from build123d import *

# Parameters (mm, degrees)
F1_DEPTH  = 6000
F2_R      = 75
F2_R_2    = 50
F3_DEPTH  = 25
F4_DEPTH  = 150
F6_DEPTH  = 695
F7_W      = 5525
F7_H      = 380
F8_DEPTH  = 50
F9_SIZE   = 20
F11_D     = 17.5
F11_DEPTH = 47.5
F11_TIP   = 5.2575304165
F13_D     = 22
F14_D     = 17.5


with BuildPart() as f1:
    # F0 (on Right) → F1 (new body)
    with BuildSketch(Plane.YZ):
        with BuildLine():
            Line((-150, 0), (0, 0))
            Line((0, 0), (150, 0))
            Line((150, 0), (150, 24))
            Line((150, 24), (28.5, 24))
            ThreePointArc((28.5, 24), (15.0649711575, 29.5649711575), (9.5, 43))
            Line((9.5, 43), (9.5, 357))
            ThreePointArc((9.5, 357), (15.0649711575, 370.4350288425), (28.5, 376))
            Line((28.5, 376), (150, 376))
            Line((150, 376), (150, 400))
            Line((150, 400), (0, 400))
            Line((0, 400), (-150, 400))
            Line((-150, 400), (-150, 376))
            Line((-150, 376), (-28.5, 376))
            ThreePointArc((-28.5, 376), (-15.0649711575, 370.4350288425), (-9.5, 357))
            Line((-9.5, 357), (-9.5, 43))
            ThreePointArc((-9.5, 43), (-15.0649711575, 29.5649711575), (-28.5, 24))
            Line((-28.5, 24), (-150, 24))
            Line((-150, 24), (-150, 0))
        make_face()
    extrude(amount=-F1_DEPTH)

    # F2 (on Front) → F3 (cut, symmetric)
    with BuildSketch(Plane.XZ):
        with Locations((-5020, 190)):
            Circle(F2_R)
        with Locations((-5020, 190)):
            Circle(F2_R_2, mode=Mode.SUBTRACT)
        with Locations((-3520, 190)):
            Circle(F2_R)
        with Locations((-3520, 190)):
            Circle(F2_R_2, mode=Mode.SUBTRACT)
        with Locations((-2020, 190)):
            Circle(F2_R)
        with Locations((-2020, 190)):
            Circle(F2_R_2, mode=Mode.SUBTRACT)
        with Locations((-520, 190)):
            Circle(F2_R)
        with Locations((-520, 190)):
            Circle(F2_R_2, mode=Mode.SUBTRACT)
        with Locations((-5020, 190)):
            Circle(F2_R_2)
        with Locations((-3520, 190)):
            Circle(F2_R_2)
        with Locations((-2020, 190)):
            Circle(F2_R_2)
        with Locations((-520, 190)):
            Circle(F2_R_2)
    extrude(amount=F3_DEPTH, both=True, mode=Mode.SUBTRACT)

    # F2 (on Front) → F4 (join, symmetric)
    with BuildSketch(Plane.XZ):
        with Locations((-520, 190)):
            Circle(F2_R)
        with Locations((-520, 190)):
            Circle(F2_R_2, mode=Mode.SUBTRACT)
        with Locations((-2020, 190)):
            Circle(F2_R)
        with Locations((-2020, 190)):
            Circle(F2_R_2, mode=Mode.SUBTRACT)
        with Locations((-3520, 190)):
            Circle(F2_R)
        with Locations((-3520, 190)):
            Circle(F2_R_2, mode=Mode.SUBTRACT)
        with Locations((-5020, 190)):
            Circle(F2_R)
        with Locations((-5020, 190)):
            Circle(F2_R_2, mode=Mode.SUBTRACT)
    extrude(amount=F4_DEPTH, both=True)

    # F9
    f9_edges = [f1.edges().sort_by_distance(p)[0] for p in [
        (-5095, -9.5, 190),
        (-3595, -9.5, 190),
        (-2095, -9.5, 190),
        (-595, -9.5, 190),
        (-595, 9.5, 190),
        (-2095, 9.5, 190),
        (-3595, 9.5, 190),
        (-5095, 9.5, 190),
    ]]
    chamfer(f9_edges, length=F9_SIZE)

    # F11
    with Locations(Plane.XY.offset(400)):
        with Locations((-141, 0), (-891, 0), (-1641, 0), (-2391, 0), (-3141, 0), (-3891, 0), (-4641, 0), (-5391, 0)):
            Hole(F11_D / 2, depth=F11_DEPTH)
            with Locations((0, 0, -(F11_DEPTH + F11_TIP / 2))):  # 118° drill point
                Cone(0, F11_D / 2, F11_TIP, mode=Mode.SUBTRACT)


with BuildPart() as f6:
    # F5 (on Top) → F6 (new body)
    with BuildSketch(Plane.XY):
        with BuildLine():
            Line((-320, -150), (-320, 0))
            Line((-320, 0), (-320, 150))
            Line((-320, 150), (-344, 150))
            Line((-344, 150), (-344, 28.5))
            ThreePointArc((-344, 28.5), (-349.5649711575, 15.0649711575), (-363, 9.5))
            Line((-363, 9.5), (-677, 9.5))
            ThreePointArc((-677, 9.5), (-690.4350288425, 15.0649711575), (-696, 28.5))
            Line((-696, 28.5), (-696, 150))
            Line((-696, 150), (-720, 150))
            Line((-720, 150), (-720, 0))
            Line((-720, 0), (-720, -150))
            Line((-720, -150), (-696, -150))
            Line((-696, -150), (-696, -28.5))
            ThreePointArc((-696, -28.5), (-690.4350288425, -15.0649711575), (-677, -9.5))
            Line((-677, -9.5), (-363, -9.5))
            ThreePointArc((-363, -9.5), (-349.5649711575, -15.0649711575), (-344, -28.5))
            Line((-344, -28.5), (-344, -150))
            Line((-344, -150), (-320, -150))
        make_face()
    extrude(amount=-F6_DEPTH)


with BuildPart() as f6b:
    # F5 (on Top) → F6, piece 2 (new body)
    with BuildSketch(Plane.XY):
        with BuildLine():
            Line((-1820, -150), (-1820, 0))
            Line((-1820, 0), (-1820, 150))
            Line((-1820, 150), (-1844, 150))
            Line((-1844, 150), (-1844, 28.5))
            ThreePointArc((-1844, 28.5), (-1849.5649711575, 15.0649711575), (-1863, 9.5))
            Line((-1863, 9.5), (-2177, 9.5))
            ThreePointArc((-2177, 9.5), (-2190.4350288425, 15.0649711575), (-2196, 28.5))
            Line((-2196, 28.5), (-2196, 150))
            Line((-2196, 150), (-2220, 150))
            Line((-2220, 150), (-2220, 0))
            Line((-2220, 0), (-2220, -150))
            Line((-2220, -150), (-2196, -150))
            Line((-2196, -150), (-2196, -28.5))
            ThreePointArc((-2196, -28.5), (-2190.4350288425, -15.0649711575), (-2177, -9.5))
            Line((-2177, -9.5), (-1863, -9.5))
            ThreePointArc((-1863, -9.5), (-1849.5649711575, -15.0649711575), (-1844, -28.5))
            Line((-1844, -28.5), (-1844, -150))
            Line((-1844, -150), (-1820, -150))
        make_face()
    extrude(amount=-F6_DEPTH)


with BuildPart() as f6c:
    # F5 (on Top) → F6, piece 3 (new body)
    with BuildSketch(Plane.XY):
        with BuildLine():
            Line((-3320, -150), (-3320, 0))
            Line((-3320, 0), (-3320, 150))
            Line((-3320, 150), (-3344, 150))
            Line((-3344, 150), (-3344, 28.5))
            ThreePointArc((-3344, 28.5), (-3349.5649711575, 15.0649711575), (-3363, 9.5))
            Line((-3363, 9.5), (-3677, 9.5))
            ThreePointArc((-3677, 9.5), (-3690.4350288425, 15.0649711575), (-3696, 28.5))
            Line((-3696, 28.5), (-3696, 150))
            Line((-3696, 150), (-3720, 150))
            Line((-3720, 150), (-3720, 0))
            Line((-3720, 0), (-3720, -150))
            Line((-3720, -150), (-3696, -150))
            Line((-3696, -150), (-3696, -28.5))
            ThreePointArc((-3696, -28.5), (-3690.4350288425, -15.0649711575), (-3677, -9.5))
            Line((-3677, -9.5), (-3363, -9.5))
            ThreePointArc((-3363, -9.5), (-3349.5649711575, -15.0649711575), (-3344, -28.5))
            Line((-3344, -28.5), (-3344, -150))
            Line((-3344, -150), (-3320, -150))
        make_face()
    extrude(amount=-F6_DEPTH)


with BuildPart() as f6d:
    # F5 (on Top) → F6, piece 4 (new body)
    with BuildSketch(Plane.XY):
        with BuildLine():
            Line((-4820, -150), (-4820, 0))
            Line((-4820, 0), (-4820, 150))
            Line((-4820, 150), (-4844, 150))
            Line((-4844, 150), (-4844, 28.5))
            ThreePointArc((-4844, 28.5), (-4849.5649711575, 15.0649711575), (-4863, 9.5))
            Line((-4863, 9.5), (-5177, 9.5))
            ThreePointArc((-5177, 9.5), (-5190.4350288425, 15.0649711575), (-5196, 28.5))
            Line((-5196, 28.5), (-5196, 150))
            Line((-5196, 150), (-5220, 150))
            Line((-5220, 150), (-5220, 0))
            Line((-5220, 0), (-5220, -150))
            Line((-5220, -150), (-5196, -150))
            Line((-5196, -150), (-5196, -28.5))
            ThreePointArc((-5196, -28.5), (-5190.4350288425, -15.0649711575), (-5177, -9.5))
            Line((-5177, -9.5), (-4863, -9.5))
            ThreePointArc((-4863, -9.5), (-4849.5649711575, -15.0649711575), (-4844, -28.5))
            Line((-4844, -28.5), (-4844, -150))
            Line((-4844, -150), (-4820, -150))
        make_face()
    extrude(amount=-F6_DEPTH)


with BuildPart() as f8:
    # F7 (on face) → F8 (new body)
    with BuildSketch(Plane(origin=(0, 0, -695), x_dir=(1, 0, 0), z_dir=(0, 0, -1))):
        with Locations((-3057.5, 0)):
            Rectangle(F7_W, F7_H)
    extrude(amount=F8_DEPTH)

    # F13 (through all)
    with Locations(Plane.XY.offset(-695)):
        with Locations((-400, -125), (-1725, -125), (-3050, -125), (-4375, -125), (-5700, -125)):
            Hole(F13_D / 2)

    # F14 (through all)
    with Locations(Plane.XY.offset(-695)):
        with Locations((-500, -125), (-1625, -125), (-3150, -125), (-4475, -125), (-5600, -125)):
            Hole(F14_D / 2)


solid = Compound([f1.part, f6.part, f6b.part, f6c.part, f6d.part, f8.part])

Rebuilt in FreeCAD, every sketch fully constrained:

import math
import FreeCAD as App
import Part
import Sketcher

V = App.Vector
Q = App.Units.Quantity


def edges_at(feature, points):
    """Names of the edges that pass closest to the given points."""
    edges = feature.Shape.Edges
    near = lambda p: min(range(len(edges)), key=lambda i: edges[i].distToShape(Part.Vertex(*p))[0])
    return sorted({f"Edge{near(p) + 1}" for p in points})

doc = App.newDocument("Part")
body = doc.addObject("PartDesign::Body", "Body")

# Sketch on YZ plane
sketch1 = doc.addObject("Sketcher::SketchObject", "Sketch")
body.addObject(sketch1)
sketch1.AttachmentSupport = (doc.YZ_Plane, [""])
sketch1.MapMode = "FlatFace"
sketch1.addGeometry([
    Part.LineSegment(V(-150, 0, 0), V(150, 0, 0)),  # 0
    Part.LineSegment(V(150, 0, 0), V(150, 24, 0)),  # 1
    Part.LineSegment(V(150, 24, 0), V(28.5, 24, 0)),  # 2
    Part.ArcOfCircle(Part.Circle(V(28.5, 43, 0), V(0, 0, 1), 19), math.radians(180), math.radians(270)),  # 3
    Part.LineSegment(V(9.5, 43, 0), V(9.5, 357, 0)),  # 4
    Part.ArcOfCircle(Part.Circle(V(28.5, 357, 0), V(0, 0, 1), 19), math.radians(90), math.radians(180)),  # 5
    Part.LineSegment(V(28.5, 376, 0), V(150, 376, 0)),  # 6
    Part.LineSegment(V(150, 376, 0), V(150, 400, 0)),  # 7
    Part.LineSegment(V(150, 400, 0), V(-150, 400, 0)),  # 8
    Part.LineSegment(V(-150, 400, 0), V(-150, 376, 0)),  # 9
    Part.LineSegment(V(-150, 376, 0), V(-28.5, 376, 0)),  # 10
    Part.ArcOfCircle(Part.Circle(V(-28.5, 357, 0), V(0, 0, 1), 19), math.radians(0), math.radians(90)),  # 11
    Part.LineSegment(V(-9.5, 357, 0), V(-9.5, 43, 0)),  # 12
    Part.ArcOfCircle(Part.Circle(V(-28.5, 43, 0), V(0, 0, 1), 19), math.radians(-90), math.radians(0)),  # 13
    Part.LineSegment(V(-28.5, 24, 0), V(-150, 24, 0)),  # 14
    Part.LineSegment(V(-150, 24, 0), V(-150, 0, 0)),  # 15
], False)
sketch1.addConstraint([
    Sketcher.Constraint("Coincident", 0, 2, 1, 1),
    Sketcher.Constraint("Coincident", 1, 2, 2, 1),
    Sketcher.Constraint("Tangent", 2, 2, 3, 2),
    Sketcher.Constraint("Tangent", 3, 1, 4, 1),
    Sketcher.Constraint("Tangent", 4, 2, 5, 2),
    Sketcher.Constraint("Tangent", 5, 1, 6, 1),
    Sketcher.Constraint("Coincident", 6, 2, 7, 1),
    Sketcher.Constraint("Coincident", 7, 2, 8, 1),
    Sketcher.Constraint("Coincident", 8, 2, 9, 1),
    Sketcher.Constraint("Coincident", 9, 2, 10, 1),
    Sketcher.Constraint("Tangent", 10, 2, 11, 2),
    Sketcher.Constraint("Tangent", 11, 1, 12, 1),
    Sketcher.Constraint("Tangent", 12, 2, 13, 2),
    Sketcher.Constraint("Tangent", 13, 1, 14, 1),
    Sketcher.Constraint("Coincident", 14, 2, 15, 1),
    Sketcher.Constraint("Coincident", 15, 2, 0, 1),
    Sketcher.Constraint("Horizontal", 0),
    Sketcher.Constraint("Vertical", 1),
    Sketcher.Constraint("Horizontal", 2),
    Sketcher.Constraint("Vertical", 4),
    Sketcher.Constraint("Horizontal", 6),
    Sketcher.Constraint("Vertical", 7),
    Sketcher.Constraint("Horizontal", 8),
    Sketcher.Constraint("Vertical", 9),
    Sketcher.Constraint("Horizontal", 10),
    Sketcher.Constraint("Vertical", 12),
    Sketcher.Constraint("Horizontal", 14),
    Sketcher.Constraint("Vertical", 15),
    Sketcher.Constraint("Equal", 3, 5),
    Sketcher.Constraint("Equal", 5, 11),
    Sketcher.Constraint("Equal", 11, 13),
    Sketcher.Constraint("Symmetric", 0, 2, 15, 2, -1, 1),
    Sketcher.Constraint("Symmetric", 5, 3, 11, 3, -2),
    Sketcher.Constraint("Horizontal", 3, 3, 13, 3),
    Sketcher.Constraint("Vertical", 1, 2, 6, 2),
    Sketcher.Constraint("Vertical", 9, 2, 14, 2),
    Sketcher.Constraint("Equal", 1, 7),
    Sketcher.Constraint("Radius", 3, Q("19 mm")),
    Sketcher.Constraint("DistanceX", 0, 1, 0, 2, Q("300 mm")),
    Sketcher.Constraint("DistanceY", 1, 1, 1, 2, Q("24 mm")),
    Sketcher.Constraint("DistanceY", 4, 1, 4, 2, Q("314 mm")),
    Sketcher.Constraint("DistanceX", 2, 2, 2, 1, Q("121.5 mm")),
])
pad1 = doc.addObject("PartDesign::Pad", "Pad")
body.addObject(pad1)
pad1.Profile = sketch1
pad1.Length = 6000
pad1.Reversed = True

# Sketch on XZ plane
sketch2 = doc.addObject("Sketcher::SketchObject", "Sketch001")
body.addObject(sketch2)
sketch2.AttachmentSupport = (doc.XZ_Plane, [""])
sketch2.MapMode = "FlatFace"
sketch2.addGeometry([
    Part.Circle(V(-5020, 190, 0), V(0, 0, 1), 75),
    Part.Circle(V(-3520, 190, 0), V(0, 0, 1), 75),
    Part.Circle(V(-2020, 190, 0), V(0, 0, 1), 75),
    Part.Circle(V(-520, 190, 0), V(0, 0, 1), 75),
], False)
sketch2.addConstraint([
    Sketcher.Constraint("Equal", 0, 1),
    Sketcher.Constraint("Equal", 1, 2),
    Sketcher.Constraint("Equal", 2, 3),
    Sketcher.Constraint("Horizontal", 0, 3, 1, 3),
    Sketcher.Constraint("Horizontal", 1, 3, 2, 3),
    Sketcher.Constraint("Horizontal", 2, 3, 3, 3),
    Sketcher.Constraint("Diameter", 0, Q("150 mm")),
    Sketcher.Constraint("DistanceX", 0, 3, -1, 1, Q("5020 mm")),
    Sketcher.Constraint("DistanceY", -1, 1, 0, 3, Q("190 mm")),
    Sketcher.Constraint("DistanceX", 1, 3, -1, 1, Q("3520 mm")),
    Sketcher.Constraint("DistanceX", 2, 3, -1, 1, Q("2020 mm")),
    Sketcher.Constraint("DistanceX", 3, 3, -1, 1, Q("520 mm")),
])
pocket1 = doc.addObject("PartDesign::Pocket", "Pocket")
body.addObject(pocket1)
pocket1.Profile = sketch2
pocket1.Length = 50
pocket1.Midplane = True

# Sketch on XZ plane
sketch3 = doc.addObject("Sketcher::SketchObject", "Sketch002")
body.addObject(sketch3)
sketch3.AttachmentSupport = (doc.XZ_Plane, [""])
sketch3.MapMode = "FlatFace"
sketch3.addGeometry([
    Part.Circle(V(-520, 190, 0), V(0, 0, 1), 75),  # 0
    Part.Circle(V(-520, 190, 0), V(0, 0, 1), 50),  # 1
    Part.Circle(V(-2020, 190, 0), V(0, 0, 1), 75),  # 2
    Part.Circle(V(-2020, 190, 0), V(0, 0, 1), 50),  # 3
    Part.Circle(V(-3520, 190, 0), V(0, 0, 1), 75),  # 4
    Part.Circle(V(-3520, 190, 0), V(0, 0, 1), 50),  # 5
    Part.Circle(V(-5020, 190, 0), V(0, 0, 1), 75),  # 6
    Part.Circle(V(-5020, 190, 0), V(0, 0, 1), 50),  # 7
], False)
sketch3.addConstraint([
    Sketcher.Constraint("Coincident", 1, 3, 0, 3),
    Sketcher.Constraint("Coincident", 3, 3, 2, 3),
    Sketcher.Constraint("Coincident", 5, 3, 4, 3),
    Sketcher.Constraint("Coincident", 7, 3, 6, 3),
    Sketcher.Constraint("Equal", 0, 2),
    Sketcher.Constraint("Equal", 1, 3),
    Sketcher.Constraint("Equal", 2, 4),
    Sketcher.Constraint("Equal", 3, 5),
    Sketcher.Constraint("Equal", 4, 6),
    Sketcher.Constraint("Equal", 5, 7),
    Sketcher.Constraint("Horizontal", 1, 3, 2, 3),
    Sketcher.Constraint("Horizontal", 3, 3, 4, 3),
    Sketcher.Constraint("Horizontal", 5, 3, 6, 3),
    Sketcher.Constraint("Diameter", 0, Q("150 mm")),
    Sketcher.Constraint("Diameter", 1, Q("100 mm")),
    Sketcher.Constraint("DistanceX", 0, 3, -1, 1, Q("520 mm")),
    Sketcher.Constraint("DistanceY", -1, 1, 0, 3, Q("190 mm")),
    Sketcher.Constraint("DistanceX", 2, 3, -1, 1, Q("2020 mm")),
    Sketcher.Constraint("DistanceX", 4, 3, -1, 1, Q("3520 mm")),
    Sketcher.Constraint("DistanceX", 6, 3, -1, 1, Q("5020 mm")),
])
pad2 = doc.addObject("PartDesign::Pad", "Pad001")
body.addObject(pad2)
pad2.Profile = sketch3
pad2.Length = 300
pad2.Midplane = True
doc.recompute()

chamfer = doc.addObject("PartDesign::Chamfer", "Chamfer")
body.addObject(chamfer)
chamfer.Base = (pad2, edges_at(pad2, [
    (-5095, -9.5, 190),
    (-3595, -9.5, 190),
    (-2095, -9.5, 190),
    (-595, -9.5, 190),
    (-595, 9.5, 190),
    (-2095, 9.5, 190),
    (-3595, 9.5, 190),
    (-5095, 9.5, 190),
]))
chamfer.Size = 20

# Sketch on XY plane
sketch4 = doc.addObject("Sketcher::SketchObject", "Sketch003")
body.addObject(sketch4)
sketch4.AttachmentSupport = (doc.XY_Plane, [""])
sketch4.MapMode = "FlatFace"
sketch4.AttachmentOffset = App.Placement(V(0, 0, 400), App.Rotation())
sketch4.addGeometry([
    Part.Circle(V(-141, 0, 0), V(0, 0, 1), 8.75),  # 0
    Part.Circle(V(-891, 0, 0), V(0, 0, 1), 8.75),  # 1
    Part.Circle(V(-1641, 0, 0), V(0, 0, 1), 8.75),  # 2
    Part.Circle(V(-2391, 0, 0), V(0, 0, 1), 8.75),  # 3
    Part.Circle(V(-3141, 0, 0), V(0, 0, 1), 8.75),  # 4
    Part.Circle(V(-3891, 0, 0), V(0, 0, 1), 8.75),  # 5
    Part.Circle(V(-4641, 0, 0), V(0, 0, 1), 8.75),  # 6
    Part.Circle(V(-5391, 0, 0), V(0, 0, 1), 8.75),  # 7
], False)
sketch4.addConstraint([
    Sketcher.Constraint("Equal", 0, 1),
    Sketcher.Constraint("Equal", 1, 2),
    Sketcher.Constraint("Equal", 2, 3),
    Sketcher.Constraint("Equal", 3, 4),
    Sketcher.Constraint("Equal", 4, 5),
    Sketcher.Constraint("Equal", 5, 6),
    Sketcher.Constraint("Equal", 6, 7),
    Sketcher.Constraint("PointOnObject", 0, 3, -1),
    Sketcher.Constraint("PointOnObject", 1, 3, -1),
    Sketcher.Constraint("PointOnObject", 2, 3, -1),
    Sketcher.Constraint("PointOnObject", 3, 3, -1),
    Sketcher.Constraint("PointOnObject", 4, 3, -1),
    Sketcher.Constraint("PointOnObject", 5, 3, -1),
    Sketcher.Constraint("PointOnObject", 6, 3, -1),
    Sketcher.Constraint("PointOnObject", 7, 3, -1),
    Sketcher.Constraint("Diameter", 0, Q("17.5 mm")),
    Sketcher.Constraint("DistanceX", 0, 3, -1, 1, Q("141 mm")),
    Sketcher.Constraint("DistanceX", 1, 3, -1, 1, Q("891 mm")),
    Sketcher.Constraint("DistanceX", 2, 3, -1, 1, Q("1641 mm")),
    Sketcher.Constraint("DistanceX", 3, 3, -1, 1, Q("2391 mm")),
    Sketcher.Constraint("DistanceX", 4, 3, -1, 1, Q("3141 mm")),
    Sketcher.Constraint("DistanceX", 5, 3, -1, 1, Q("3891 mm")),
    Sketcher.Constraint("DistanceX", 6, 3, -1, 1, Q("4641 mm")),
    Sketcher.Constraint("DistanceX", 7, 3, -1, 1, Q("5391 mm")),
])
doc.recompute()
hole = doc.addObject("PartDesign::Hole", "Hole")
body.addObject(hole)
hole.Profile = sketch4
hole.ThreadType = "None"
hole.Diameter = 17.5
hole.DepthType = "Dimension"
hole.Depth = 47.5
hole.DrillPoint = "Angled"
hole.DrillPointAngle = 118
body2 = doc.addObject("PartDesign::Body", "Body001")

# Sketch on XY plane
sketch5 = doc.addObject("Sketcher::SketchObject", "Sketch004")
body2.addObject(sketch5)
sketch5.AttachmentSupport = (doc.getObject("XY_Plane001"), [""])
sketch5.MapMode = "FlatFace"
sketch5.addGeometry([
    Part.LineSegment(V(-320, -150, 0), V(-320, 150, 0)),  # 0
    Part.LineSegment(V(-320, 150, 0), V(-344, 150, 0)),  # 1
    Part.LineSegment(V(-344, 150, 0), V(-344, 28.5, 0)),  # 2
    Part.ArcOfCircle(Part.Circle(V(-363, 28.5, 0), V(0, 0, 1), 19), math.radians(-90), math.radians(0)),  # 3
    Part.LineSegment(V(-363, 9.5, 0), V(-677, 9.5, 0)),  # 4
    Part.ArcOfCircle(Part.Circle(V(-677, 28.5, 0), V(0, 0, 1), 19), math.radians(180), math.radians(270)),  # 5
    Part.LineSegment(V(-696, 28.5, 0), V(-696, 150, 0)),  # 6
    Part.LineSegment(V(-696, 150, 0), V(-720, 150, 0)),  # 7
    Part.LineSegment(V(-720, 150, 0), V(-720, -150, 0)),  # 8
    Part.LineSegment(V(-720, -150, 0), V(-696, -150, 0)),  # 9
    Part.LineSegment(V(-696, -150, 0), V(-696, -28.5, 0)),  # 10
    Part.ArcOfCircle(Part.Circle(V(-677, -28.5, 0), V(0, 0, 1), 19), math.radians(90), math.radians(180)),  # 11
    Part.LineSegment(V(-677, -9.5, 0), V(-363, -9.5, 0)),  # 12
    Part.ArcOfCircle(Part.Circle(V(-363, -28.5, 0), V(0, 0, 1), 19), math.radians(0), math.radians(90)),  # 13
    Part.LineSegment(V(-344, -28.5, 0), V(-344, -150, 0)),  # 14
    Part.LineSegment(V(-344, -150, 0), V(-320, -150, 0)),  # 15
], False)
sketch5.addConstraint([
    Sketcher.Constraint("Coincident", 0, 2, 1, 1),
    Sketcher.Constraint("Coincident", 1, 2, 2, 1),
    Sketcher.Constraint("Tangent", 2, 2, 3, 2),
    Sketcher.Constraint("Tangent", 3, 1, 4, 1),
    Sketcher.Constraint("Tangent", 4, 2, 5, 2),
    Sketcher.Constraint("Tangent", 5, 1, 6, 1),
    Sketcher.Constraint("Coincident", 6, 2, 7, 1),
    Sketcher.Constraint("Coincident", 7, 2, 8, 1),
    Sketcher.Constraint("Coincident", 8, 2, 9, 1),
    Sketcher.Constraint("Coincident", 9, 2, 10, 1),
    Sketcher.Constraint("Tangent", 10, 2, 11, 2),
    Sketcher.Constraint("Tangent", 11, 1, 12, 1),
    Sketcher.Constraint("Tangent", 12, 2, 13, 2),
    Sketcher.Constraint("Tangent", 13, 1, 14, 1),
    Sketcher.Constraint("Coincident", 14, 2, 15, 1),
    Sketcher.Constraint("Coincident", 15, 2, 0, 1),
    Sketcher.Constraint("Vertical", 0),
    Sketcher.Constraint("Horizontal", 1),
    Sketcher.Constraint("Vertical", 2),
    Sketcher.Constraint("Horizontal", 4),
    Sketcher.Constraint("Vertical", 6),
    Sketcher.Constraint("Horizontal", 7),
    Sketcher.Constraint("Vertical", 8),
    Sketcher.Constraint("Horizontal", 9),
    Sketcher.Constraint("Vertical", 10),
    Sketcher.Constraint("Horizontal", 12),
    Sketcher.Constraint("Vertical", 14),
    Sketcher.Constraint("Horizontal", 15),
    Sketcher.Constraint("Equal", 3, 5),
    Sketcher.Constraint("Equal", 5, 11),
    Sketcher.Constraint("Equal", 11, 13),
    Sketcher.Constraint("Symmetric", 5, 3, 11, 3, -1),
    Sketcher.Constraint("Symmetric", 1, 2, 14, 2, -1),
    Sketcher.Constraint("Horizontal", 1, 2, 6, 2),
    Sketcher.Constraint("Horizontal", 9, 2, 14, 2),
    Sketcher.Constraint("Equal", 1, 7),
    Sketcher.Constraint("Radius", 3, Q("19 mm")),
    Sketcher.Constraint("DistanceX", 1, 2, 1, 1, Q("24 mm")),
    Sketcher.Constraint("DistanceX", 4, 2, 4, 1, Q("314 mm")),
    Sketcher.Constraint("DistanceY", 0, 1, 0, 2, Q("300 mm")),
    Sketcher.Constraint("DistanceY", 2, 2, 2, 1, Q("121.5 mm")),
    Sketcher.Constraint("DistanceX", 3, 3, -1, 1, Q("363 mm")),
])
pad3 = doc.addObject("PartDesign::Pad", "Pad002")
body2.addObject(pad3)
pad3.Profile = sketch5
pad3.Length = 695
pad3.Reversed = True
body3 = doc.addObject("PartDesign::Body", "Body002")

# Sketch on XY plane
sketch6 = doc.addObject("Sketcher::SketchObject", "Sketch005")
body3.addObject(sketch6)
sketch6.AttachmentSupport = (doc.getObject("XY_Plane002"), [""])
sketch6.MapMode = "FlatFace"
sketch6.addGeometry([
    Part.LineSegment(V(-1820, -150, 0), V(-1820, 150, 0)),  # 0
    Part.LineSegment(V(-1820, 150, 0), V(-1844, 150, 0)),  # 1
    Part.LineSegment(V(-1844, 150, 0), V(-1844, 28.5, 0)),  # 2
    Part.ArcOfCircle(Part.Circle(V(-1863, 28.5, 0), V(0, 0, 1), 19), math.radians(-90), math.radians(0)),  # 3
    Part.LineSegment(V(-1863, 9.5, 0), V(-2177, 9.5, 0)),  # 4
    Part.ArcOfCircle(Part.Circle(V(-2177, 28.5, 0), V(0, 0, 1), 19), math.radians(180), math.radians(270)),  # 5
    Part.LineSegment(V(-2196, 28.5, 0), V(-2196, 150, 0)),  # 6
    Part.LineSegment(V(-2196, 150, 0), V(-2220, 150, 0)),  # 7
    Part.LineSegment(V(-2220, 150, 0), V(-2220, -150, 0)),  # 8
    Part.LineSegment(V(-2220, -150, 0), V(-2196, -150, 0)),  # 9
    Part.LineSegment(V(-2196, -150, 0), V(-2196, -28.5, 0)),  # 10
    Part.ArcOfCircle(Part.Circle(V(-2177, -28.5, 0), V(0, 0, 1), 19), math.radians(90), math.radians(180)),  # 11
    Part.LineSegment(V(-2177, -9.5, 0), V(-1863, -9.5, 0)),  # 12
    Part.ArcOfCircle(Part.Circle(V(-1863, -28.5, 0), V(0, 0, 1), 19), math.radians(0), math.radians(90)),  # 13
    Part.LineSegment(V(-1844, -28.5, 0), V(-1844, -150, 0)),  # 14
    Part.LineSegment(V(-1844, -150, 0), V(-1820, -150, 0)),  # 15
], False)
sketch6.addConstraint([
    Sketcher.Constraint("Coincident", 0, 2, 1, 1),
    Sketcher.Constraint("Coincident", 1, 2, 2, 1),
    Sketcher.Constraint("Tangent", 2, 2, 3, 2),
    Sketcher.Constraint("Tangent", 3, 1, 4, 1),
    Sketcher.Constraint("Tangent", 4, 2, 5, 2),
    Sketcher.Constraint("Tangent", 5, 1, 6, 1),
    Sketcher.Constraint("Coincident", 6, 2, 7, 1),
    Sketcher.Constraint("Coincident", 7, 2, 8, 1),
    Sketcher.Constraint("Coincident", 8, 2, 9, 1),
    Sketcher.Constraint("Coincident", 9, 2, 10, 1),
    Sketcher.Constraint("Tangent", 10, 2, 11, 2),
    Sketcher.Constraint("Tangent", 11, 1, 12, 1),
    Sketcher.Constraint("Tangent", 12, 2, 13, 2),
    Sketcher.Constraint("Tangent", 13, 1, 14, 1),
    Sketcher.Constraint("Coincident", 14, 2, 15, 1),
    Sketcher.Constraint("Coincident", 15, 2, 0, 1),
    Sketcher.Constraint("Vertical", 0),
    Sketcher.Constraint("Horizontal", 1),
    Sketcher.Constraint("Vertical", 2),
    Sketcher.Constraint("Horizontal", 4),
    Sketcher.Constraint("Vertical", 6),
    Sketcher.Constraint("Horizontal", 7),
    Sketcher.Constraint("Vertical", 8),
    Sketcher.Constraint("Horizontal", 9),
    Sketcher.Constraint("Vertical", 10),
    Sketcher.Constraint("Horizontal", 12),
    Sketcher.Constraint("Vertical", 14),
    Sketcher.Constraint("Horizontal", 15),
    Sketcher.Constraint("Equal", 3, 5),
    Sketcher.Constraint("Equal", 5, 11),
    Sketcher.Constraint("Equal", 11, 13),
    Sketcher.Constraint("Symmetric", 5, 3, 11, 3, -1),
    Sketcher.Constraint("Symmetric", 1, 2, 14, 2, -1),
    Sketcher.Constraint("Horizontal", 1, 2, 6, 2),
    Sketcher.Constraint("Horizontal", 9, 2, 14, 2),
    Sketcher.Constraint("Equal", 1, 7),
    Sketcher.Constraint("Radius", 3, Q("19 mm")),
    Sketcher.Constraint("DistanceX", 1, 2, 1, 1, Q("24 mm")),
    Sketcher.Constraint("DistanceX", 4, 2, 4, 1, Q("314 mm")),
    Sketcher.Constraint("DistanceY", 0, 1, 0, 2, Q("300 mm")),
    Sketcher.Constraint("DistanceY", 2, 2, 2, 1, Q("121.5 mm")),
    Sketcher.Constraint("DistanceX", 3, 3, -1, 1, Q("1863 mm")),
])
pad4 = doc.addObject("PartDesign::Pad", "Pad003")
body3.addObject(pad4)
pad4.Profile = sketch6
pad4.Length = 695
pad4.Reversed = True
body4 = doc.addObject("PartDesign::Body", "Body003")

# Sketch on XY plane
sketch7 = doc.addObject("Sketcher::SketchObject", "Sketch006")
body4.addObject(sketch7)
sketch7.AttachmentSupport = (doc.getObject("XY_Plane003"), [""])
sketch7.MapMode = "FlatFace"
sketch7.addGeometry([
    Part.LineSegment(V(-3320, -150, 0), V(-3320, 150, 0)),  # 0
    Part.LineSegment(V(-3320, 150, 0), V(-3344, 150, 0)),  # 1
    Part.LineSegment(V(-3344, 150, 0), V(-3344, 28.5, 0)),  # 2
    Part.ArcOfCircle(Part.Circle(V(-3363, 28.5, 0), V(0, 0, 1), 19), math.radians(-90), math.radians(0)),  # 3
    Part.LineSegment(V(-3363, 9.5, 0), V(-3677, 9.5, 0)),  # 4
    Part.ArcOfCircle(Part.Circle(V(-3677, 28.5, 0), V(0, 0, 1), 19), math.radians(180), math.radians(270)),  # 5
    Part.LineSegment(V(-3696, 28.5, 0), V(-3696, 150, 0)),  # 6
    Part.LineSegment(V(-3696, 150, 0), V(-3720, 150, 0)),  # 7
    Part.LineSegment(V(-3720, 150, 0), V(-3720, -150, 0)),  # 8
    Part.LineSegment(V(-3720, -150, 0), V(-3696, -150, 0)),  # 9
    Part.LineSegment(V(-3696, -150, 0), V(-3696, -28.5, 0)),  # 10
    Part.ArcOfCircle(Part.Circle(V(-3677, -28.5, 0), V(0, 0, 1), 19), math.radians(90), math.radians(180)),  # 11
    Part.LineSegment(V(-3677, -9.5, 0), V(-3363, -9.5, 0)),  # 12
    Part.ArcOfCircle(Part.Circle(V(-3363, -28.5, 0), V(0, 0, 1), 19), math.radians(0), math.radians(90)),  # 13
    Part.LineSegment(V(-3344, -28.5, 0), V(-3344, -150, 0)),  # 14
    Part.LineSegment(V(-3344, -150, 0), V(-3320, -150, 0)),  # 15
], False)
sketch7.addConstraint([
    Sketcher.Constraint("Coincident", 0, 2, 1, 1),
    Sketcher.Constraint("Coincident", 1, 2, 2, 1),
    Sketcher.Constraint("Tangent", 2, 2, 3, 2),
    Sketcher.Constraint("Tangent", 3, 1, 4, 1),
    Sketcher.Constraint("Tangent", 4, 2, 5, 2),
    Sketcher.Constraint("Tangent", 5, 1, 6, 1),
    Sketcher.Constraint("Coincident", 6, 2, 7, 1),
    Sketcher.Constraint("Coincident", 7, 2, 8, 1),
    Sketcher.Constraint("Coincident", 8, 2, 9, 1),
    Sketcher.Constraint("Coincident", 9, 2, 10, 1),
    Sketcher.Constraint("Tangent", 10, 2, 11, 2),
    Sketcher.Constraint("Tangent", 11, 1, 12, 1),
    Sketcher.Constraint("Tangent", 12, 2, 13, 2),
    Sketcher.Constraint("Tangent", 13, 1, 14, 1),
    Sketcher.Constraint("Coincident", 14, 2, 15, 1),
    Sketcher.Constraint("Coincident", 15, 2, 0, 1),
    Sketcher.Constraint("Vertical", 0),
    Sketcher.Constraint("Horizontal", 1),
    Sketcher.Constraint("Vertical", 2),
    Sketcher.Constraint("Horizontal", 4),
    Sketcher.Constraint("Vertical", 6),
    Sketcher.Constraint("Horizontal", 7),
    Sketcher.Constraint("Vertical", 8),
    Sketcher.Constraint("Horizontal", 9),
    Sketcher.Constraint("Vertical", 10),
    Sketcher.Constraint("Horizontal", 12),
    Sketcher.Constraint("Vertical", 14),
    Sketcher.Constraint("Horizontal", 15),
    Sketcher.Constraint("Equal", 3, 5),
    Sketcher.Constraint("Equal", 5, 11),
    Sketcher.Constraint("Equal", 11, 13),
    Sketcher.Constraint("Symmetric", 5, 3, 11, 3, -1),
    Sketcher.Constraint("Symmetric", 1, 2, 14, 2, -1),
    Sketcher.Constraint("Horizontal", 1, 2, 6, 2),
    Sketcher.Constraint("Horizontal", 9, 2, 14, 2),
    Sketcher.Constraint("Equal", 1, 7),
    Sketcher.Constraint("Radius", 3, Q("19 mm")),
    Sketcher.Constraint("DistanceX", 1, 2, 1, 1, Q("24 mm")),
    Sketcher.Constraint("DistanceX", 4, 2, 4, 1, Q("314 mm")),
    Sketcher.Constraint("DistanceY", 0, 1, 0, 2, Q("300 mm")),
    Sketcher.Constraint("DistanceY", 2, 2, 2, 1, Q("121.5 mm")),
    Sketcher.Constraint("DistanceX", 3, 3, -1, 1, Q("3363 mm")),
])
pad5 = doc.addObject("PartDesign::Pad", "Pad004")
body4.addObject(pad5)
pad5.Profile = sketch7
pad5.Length = 695
pad5.Reversed = True
body5 = doc.addObject("PartDesign::Body", "Body004")

# Sketch on XY plane
sketch8 = doc.addObject("Sketcher::SketchObject", "Sketch007")
body5.addObject(sketch8)
sketch8.AttachmentSupport = (doc.getObject("XY_Plane004"), [""])
sketch8.MapMode = "FlatFace"
sketch8.addGeometry([
    Part.LineSegment(V(-4820, -150, 0), V(-4820, 150, 0)),  # 0
    Part.LineSegment(V(-4820, 150, 0), V(-4844, 150, 0)),  # 1
    Part.LineSegment(V(-4844, 150, 0), V(-4844, 28.5, 0)),  # 2
    Part.ArcOfCircle(Part.Circle(V(-4863, 28.5, 0), V(0, 0, 1), 19), math.radians(-90), math.radians(0)),  # 3
    Part.LineSegment(V(-4863, 9.5, 0), V(-5177, 9.5, 0)),  # 4
    Part.ArcOfCircle(Part.Circle(V(-5177, 28.5, 0), V(0, 0, 1), 19), math.radians(180), math.radians(270)),  # 5
    Part.LineSegment(V(-5196, 28.5, 0), V(-5196, 150, 0)),  # 6
    Part.LineSegment(V(-5196, 150, 0), V(-5220, 150, 0)),  # 7
    Part.LineSegment(V(-5220, 150, 0), V(-5220, -150, 0)),  # 8
    Part.LineSegment(V(-5220, -150, 0), V(-5196, -150, 0)),  # 9
    Part.LineSegment(V(-5196, -150, 0), V(-5196, -28.5, 0)),  # 10
    Part.ArcOfCircle(Part.Circle(V(-5177, -28.5, 0), V(0, 0, 1), 19), math.radians(90), math.radians(180)),  # 11
    Part.LineSegment(V(-5177, -9.5, 0), V(-4863, -9.5, 0)),  # 12
    Part.ArcOfCircle(Part.Circle(V(-4863, -28.5, 0), V(0, 0, 1), 19), math.radians(0), math.radians(90)),  # 13
    Part.LineSegment(V(-4844, -28.5, 0), V(-4844, -150, 0)),  # 14
    Part.LineSegment(V(-4844, -150, 0), V(-4820, -150, 0)),  # 15
], False)
sketch8.addConstraint([
    Sketcher.Constraint("Coincident", 0, 2, 1, 1),
    Sketcher.Constraint("Coincident", 1, 2, 2, 1),
    Sketcher.Constraint("Tangent", 2, 2, 3, 2),
    Sketcher.Constraint("Tangent", 3, 1, 4, 1),
    Sketcher.Constraint("Tangent", 4, 2, 5, 2),
    Sketcher.Constraint("Tangent", 5, 1, 6, 1),
    Sketcher.Constraint("Coincident", 6, 2, 7, 1),
    Sketcher.Constraint("Coincident", 7, 2, 8, 1),
    Sketcher.Constraint("Coincident", 8, 2, 9, 1),
    Sketcher.Constraint("Coincident", 9, 2, 10, 1),
    Sketcher.Constraint("Tangent", 10, 2, 11, 2),
    Sketcher.Constraint("Tangent", 11, 1, 12, 1),
    Sketcher.Constraint("Tangent", 12, 2, 13, 2),
    Sketcher.Constraint("Tangent", 13, 1, 14, 1),
    Sketcher.Constraint("Coincident", 14, 2, 15, 1),
    Sketcher.Constraint("Coincident", 15, 2, 0, 1),
    Sketcher.Constraint("Vertical", 0),
    Sketcher.Constraint("Horizontal", 1),
    Sketcher.Constraint("Vertical", 2),
    Sketcher.Constraint("Horizontal", 4),
    Sketcher.Constraint("Vertical", 6),
    Sketcher.Constraint("Horizontal", 7),
    Sketcher.Constraint("Vertical", 8),
    Sketcher.Constraint("Horizontal", 9),
    Sketcher.Constraint("Vertical", 10),
    Sketcher.Constraint("Horizontal", 12),
    Sketcher.Constraint("Vertical", 14),
    Sketcher.Constraint("Horizontal", 15),
    Sketcher.Constraint("Equal", 3, 5),
    Sketcher.Constraint("Equal", 5, 11),
    Sketcher.Constraint("Equal", 11, 13),
    Sketcher.Constraint("Symmetric", 5, 3, 11, 3, -1),
    Sketcher.Constraint("Symmetric", 1, 2, 14, 2, -1),
    Sketcher.Constraint("Horizontal", 1, 2, 6, 2),
    Sketcher.Constraint("Horizontal", 9, 2, 14, 2),
    Sketcher.Constraint("Equal", 1, 7),
    Sketcher.Constraint("Radius", 3, Q("19 mm")),
    Sketcher.Constraint("DistanceX", 1, 2, 1, 1, Q("24 mm")),
    Sketcher.Constraint("DistanceX", 4, 2, 4, 1, Q("314 mm")),
    Sketcher.Constraint("DistanceY", 0, 1, 0, 2, Q("300 mm")),
    Sketcher.Constraint("DistanceY", 2, 2, 2, 1, Q("121.5 mm")),
    Sketcher.Constraint("DistanceX", 3, 3, -1, 1, Q("4863 mm")),
])
pad6 = doc.addObject("PartDesign::Pad", "Pad005")
body5.addObject(pad6)
pad6.Profile = sketch8
pad6.Length = 695
pad6.Reversed = True
body6 = doc.addObject("PartDesign::Body", "Body005")

# Sketch on XY plane
sketch9 = doc.addObject("Sketcher::SketchObject", "Sketch008")
body6.addObject(sketch9)
sketch9.AttachmentSupport = (doc.getObject("XY_Plane005"), [""])
sketch9.MapMode = "FlatFace"
sketch9.AttachmentOffset = App.Placement(V(0, 0, -695), App.Rotation())
sketch9.addGeometry([
    Part.LineSegment(V(-5820, -190, 0), V(-5820, 190, 0)),
    Part.LineSegment(V(-5820, 190, 0), V(-295, 190, 0)),
    Part.LineSegment(V(-295, 190, 0), V(-295, -190, 0)),
    Part.LineSegment(V(-295, -190, 0), V(-5820, -190, 0)),
], False)
sketch9.addConstraint([
    Sketcher.Constraint("Coincident", 0, 2, 1, 1),
    Sketcher.Constraint("Coincident", 1, 2, 2, 1),
    Sketcher.Constraint("Coincident", 2, 2, 3, 1),
    Sketcher.Constraint("Coincident", 3, 2, 0, 1),
    Sketcher.Constraint("Vertical", 0),
    Sketcher.Constraint("Horizontal", 1),
    Sketcher.Constraint("Vertical", 2),
    Sketcher.Constraint("Horizontal", 3),
    Sketcher.Constraint("DistanceX", 1, 1, 1, 2, Q("5525 mm")),
    Sketcher.Constraint("DistanceY", 0, 1, 0, 2, Q("380 mm")),
    Sketcher.Constraint("DistanceX", 0, 2, -1, 1, Q("5820 mm")),
    Sketcher.Constraint("DistanceY", -1, 1, 0, 2, Q("190 mm")),
])
pad7 = doc.addObject("PartDesign::Pad", "Pad006")
body6.addObject(pad7)
pad7.Profile = sketch9
pad7.Length = 50
pad7.Reversed = True

# Sketch on XY plane
sketch10 = doc.addObject("Sketcher::SketchObject", "Sketch009")
body6.addObject(sketch10)
sketch10.AttachmentSupport = (doc.getObject("XY_Plane005"), [""])
sketch10.MapMode = "FlatFace"
sketch10.AttachmentOffset = App.Placement(V(0, 0, -695), App.Rotation())
sketch10.addGeometry([
    Part.Circle(V(-400, -125, 0), V(0, 0, 1), 11),  # 0
    Part.Circle(V(-1725, -125, 0), V(0, 0, 1), 11),  # 1
    Part.Circle(V(-3050, -125, 0), V(0, 0, 1), 11),  # 2
    Part.Circle(V(-4375, -125, 0), V(0, 0, 1), 11),  # 3
    Part.Circle(V(-5700, -125, 0), V(0, 0, 1), 11),  # 4
], False)
sketch10.addConstraint([
    Sketcher.Constraint("Equal", 0, 1),
    Sketcher.Constraint("Equal", 1, 2),
    Sketcher.Constraint("Equal", 2, 3),
    Sketcher.Constraint("Equal", 3, 4),
    Sketcher.Constraint("Horizontal", 0, 3, 1, 3),
    Sketcher.Constraint("Horizontal", 1, 3, 2, 3),
    Sketcher.Constraint("Horizontal", 2, 3, 3, 3),
    Sketcher.Constraint("Horizontal", 3, 3, 4, 3),
    Sketcher.Constraint("Diameter", 0, Q("22 mm")),
    Sketcher.Constraint("DistanceX", 0, 3, -1, 1, Q("400 mm")),
    Sketcher.Constraint("DistanceY", 0, 3, -1, 1, Q("125 mm")),
    Sketcher.Constraint("DistanceX", 1, 3, -1, 1, Q("1725 mm")),
    Sketcher.Constraint("DistanceX", 2, 3, -1, 1, Q("3050 mm")),
    Sketcher.Constraint("DistanceX", 3, 3, -1, 1, Q("4375 mm")),
    Sketcher.Constraint("DistanceX", 4, 3, -1, 1, Q("5700 mm")),
])
doc.recompute()
hole2 = doc.addObject("PartDesign::Hole", "Hole001")
body6.addObject(hole2)
hole2.Profile = sketch10
hole2.ThreadType = "None"
hole2.Diameter = 22
hole2.DepthType = "ThroughAll"

# Sketch on XY plane
sketch11 = doc.addObject("Sketcher::SketchObject", "Sketch010")
body6.addObject(sketch11)
sketch11.AttachmentSupport = (doc.getObject("XY_Plane005"), [""])
sketch11.MapMode = "FlatFace"
sketch11.AttachmentOffset = App.Placement(V(0, 0, -695), App.Rotation())
sketch11.addGeometry([
    Part.Circle(V(-500, -125, 0), V(0, 0, 1), 8.75),  # 0
    Part.Circle(V(-1625, -125, 0), V(0, 0, 1), 8.75),  # 1
    Part.Circle(V(-3150, -125, 0), V(0, 0, 1), 8.75),  # 2
    Part.Circle(V(-4475, -125, 0), V(0, 0, 1), 8.75),  # 3
    Part.Circle(V(-5600, -125, 0), V(0, 0, 1), 8.75),  # 4
], False)
sketch11.addConstraint([
    Sketcher.Constraint("Equal", 0, 1),
    Sketcher.Constraint("Equal", 1, 2),
    Sketcher.Constraint("Equal", 2, 3),
    Sketcher.Constraint("Equal", 3, 4),
    Sketcher.Constraint("Horizontal", 0, 3, 1, 3),
    Sketcher.Constraint("Horizontal", 1, 3, 2, 3),
    Sketcher.Constraint("Horizontal", 2, 3, 3, 3),
    Sketcher.Constraint("Horizontal", 3, 3, 4, 3),
    Sketcher.Constraint("Diameter", 0, Q("17.5 mm")),
    Sketcher.Constraint("DistanceX", 0, 3, -1, 1, Q("500 mm")),
    Sketcher.Constraint("DistanceY", 0, 3, -1, 1, Q("125 mm")),
    Sketcher.Constraint("DistanceX", 1, 3, -1, 1, Q("1625 mm")),
    Sketcher.Constraint("DistanceX", 2, 3, -1, 1, Q("3150 mm")),
    Sketcher.Constraint("DistanceX", 3, 3, -1, 1, Q("4475 mm")),
    Sketcher.Constraint("DistanceX", 4, 3, -1, 1, Q("5600 mm")),
])
doc.recompute()
hole3 = doc.addObject("PartDesign::Hole", "Hole002")
body6.addObject(hole3)
hole3.Profile = sketch11
hole3.ThreadType = "None"
hole3.Diameter = 17.5
hole3.DepthType = "ThroughAll"

doc.recompute()
